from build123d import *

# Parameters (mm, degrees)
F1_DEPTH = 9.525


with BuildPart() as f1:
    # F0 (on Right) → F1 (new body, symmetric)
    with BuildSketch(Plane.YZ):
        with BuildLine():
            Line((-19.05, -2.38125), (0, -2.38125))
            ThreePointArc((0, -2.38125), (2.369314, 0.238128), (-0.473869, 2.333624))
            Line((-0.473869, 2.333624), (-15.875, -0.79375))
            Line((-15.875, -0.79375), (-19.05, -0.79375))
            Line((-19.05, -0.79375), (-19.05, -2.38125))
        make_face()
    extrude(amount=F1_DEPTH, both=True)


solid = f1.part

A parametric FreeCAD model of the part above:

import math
import FreeCAD as App
import Part
import Sketcher
from FreeCAD import Vector
Q = App.Units.Quantity

doc = App.newDocument("Part")
body = doc.addObject("PartDesign::Body", "Body")

# Sketch on YZ plane
sketch1 = doc.addObject("Sketcher::SketchObject", "Sketch")
body.addObject(sketch1)
sketch1.AttachmentSupport = (doc.YZ_Plane, [""])
sketch1.MapMode = "FlatFace"
sketch1.addGeometry([
    Part.LineSegment(Vector(-19.1, -2.4, 0), Vector(0, -2.4, 0)),  # 0
    Part.ArcOfCircle(Part.Circle(Vector(0, 0, 0), Vector(0, 0, 1), 2.4), math.radians(-90), math.radians(101)),  # 1
    Part.LineSegment(Vector(-0.5, 2.3, 0), Vector(-15.9, -0.8, 0)),  # 2
    Part.LineSegment(Vector(-15.9, -0.8, 0), Vector(-19.1, -0.8, 0)),  # 3
    Part.LineSegment(Vector(-19.1, -0.8, 0), Vector(-19.1, -2.4, 0)),  # 4
], False)
sketch1.addConstraint([
    Sketcher.Constraint("Tangent", 0, 2, 1, 1),
    Sketcher.Constraint("Tangent", 1, 2, 2, 1),
    Sketcher.Constraint("Coincident", 2, 2, 3, 1),
    Sketcher.Constraint("Coincident", 3, 2, 4, 1),
    Sketcher.Constraint("Coincident", 4, 2, 0, 1),
    Sketcher.Constraint("Horizontal", 0),
    Sketcher.Constraint("Horizontal", 3),
    Sketcher.Constraint("Vertical", 4),
    Sketcher.Constraint("Coincident", 1, 3, -1, 1),
    Sketcher.Constraint("Radius", 1, Q("0.09375 in")),
    Sketcher.Constraint("DistanceX", 0, 1, 0, 2, Q("0.75 in")),
    Sketcher.Constraint("DistanceX", 3, 2, 3, 1, Q("0.125 in")),
    Sketcher.Constraint("DistanceY", 4, 2, 4, 1, Q("0.0625 in")),
])
pad1 = doc.addObject("PartDesign::Pad", "Pad")
body.addObject(pad1)
pad1.Profile = sketch1
pad1.Length = Q("0.75 in")
pad1.Midplane = True

doc.recompute()
